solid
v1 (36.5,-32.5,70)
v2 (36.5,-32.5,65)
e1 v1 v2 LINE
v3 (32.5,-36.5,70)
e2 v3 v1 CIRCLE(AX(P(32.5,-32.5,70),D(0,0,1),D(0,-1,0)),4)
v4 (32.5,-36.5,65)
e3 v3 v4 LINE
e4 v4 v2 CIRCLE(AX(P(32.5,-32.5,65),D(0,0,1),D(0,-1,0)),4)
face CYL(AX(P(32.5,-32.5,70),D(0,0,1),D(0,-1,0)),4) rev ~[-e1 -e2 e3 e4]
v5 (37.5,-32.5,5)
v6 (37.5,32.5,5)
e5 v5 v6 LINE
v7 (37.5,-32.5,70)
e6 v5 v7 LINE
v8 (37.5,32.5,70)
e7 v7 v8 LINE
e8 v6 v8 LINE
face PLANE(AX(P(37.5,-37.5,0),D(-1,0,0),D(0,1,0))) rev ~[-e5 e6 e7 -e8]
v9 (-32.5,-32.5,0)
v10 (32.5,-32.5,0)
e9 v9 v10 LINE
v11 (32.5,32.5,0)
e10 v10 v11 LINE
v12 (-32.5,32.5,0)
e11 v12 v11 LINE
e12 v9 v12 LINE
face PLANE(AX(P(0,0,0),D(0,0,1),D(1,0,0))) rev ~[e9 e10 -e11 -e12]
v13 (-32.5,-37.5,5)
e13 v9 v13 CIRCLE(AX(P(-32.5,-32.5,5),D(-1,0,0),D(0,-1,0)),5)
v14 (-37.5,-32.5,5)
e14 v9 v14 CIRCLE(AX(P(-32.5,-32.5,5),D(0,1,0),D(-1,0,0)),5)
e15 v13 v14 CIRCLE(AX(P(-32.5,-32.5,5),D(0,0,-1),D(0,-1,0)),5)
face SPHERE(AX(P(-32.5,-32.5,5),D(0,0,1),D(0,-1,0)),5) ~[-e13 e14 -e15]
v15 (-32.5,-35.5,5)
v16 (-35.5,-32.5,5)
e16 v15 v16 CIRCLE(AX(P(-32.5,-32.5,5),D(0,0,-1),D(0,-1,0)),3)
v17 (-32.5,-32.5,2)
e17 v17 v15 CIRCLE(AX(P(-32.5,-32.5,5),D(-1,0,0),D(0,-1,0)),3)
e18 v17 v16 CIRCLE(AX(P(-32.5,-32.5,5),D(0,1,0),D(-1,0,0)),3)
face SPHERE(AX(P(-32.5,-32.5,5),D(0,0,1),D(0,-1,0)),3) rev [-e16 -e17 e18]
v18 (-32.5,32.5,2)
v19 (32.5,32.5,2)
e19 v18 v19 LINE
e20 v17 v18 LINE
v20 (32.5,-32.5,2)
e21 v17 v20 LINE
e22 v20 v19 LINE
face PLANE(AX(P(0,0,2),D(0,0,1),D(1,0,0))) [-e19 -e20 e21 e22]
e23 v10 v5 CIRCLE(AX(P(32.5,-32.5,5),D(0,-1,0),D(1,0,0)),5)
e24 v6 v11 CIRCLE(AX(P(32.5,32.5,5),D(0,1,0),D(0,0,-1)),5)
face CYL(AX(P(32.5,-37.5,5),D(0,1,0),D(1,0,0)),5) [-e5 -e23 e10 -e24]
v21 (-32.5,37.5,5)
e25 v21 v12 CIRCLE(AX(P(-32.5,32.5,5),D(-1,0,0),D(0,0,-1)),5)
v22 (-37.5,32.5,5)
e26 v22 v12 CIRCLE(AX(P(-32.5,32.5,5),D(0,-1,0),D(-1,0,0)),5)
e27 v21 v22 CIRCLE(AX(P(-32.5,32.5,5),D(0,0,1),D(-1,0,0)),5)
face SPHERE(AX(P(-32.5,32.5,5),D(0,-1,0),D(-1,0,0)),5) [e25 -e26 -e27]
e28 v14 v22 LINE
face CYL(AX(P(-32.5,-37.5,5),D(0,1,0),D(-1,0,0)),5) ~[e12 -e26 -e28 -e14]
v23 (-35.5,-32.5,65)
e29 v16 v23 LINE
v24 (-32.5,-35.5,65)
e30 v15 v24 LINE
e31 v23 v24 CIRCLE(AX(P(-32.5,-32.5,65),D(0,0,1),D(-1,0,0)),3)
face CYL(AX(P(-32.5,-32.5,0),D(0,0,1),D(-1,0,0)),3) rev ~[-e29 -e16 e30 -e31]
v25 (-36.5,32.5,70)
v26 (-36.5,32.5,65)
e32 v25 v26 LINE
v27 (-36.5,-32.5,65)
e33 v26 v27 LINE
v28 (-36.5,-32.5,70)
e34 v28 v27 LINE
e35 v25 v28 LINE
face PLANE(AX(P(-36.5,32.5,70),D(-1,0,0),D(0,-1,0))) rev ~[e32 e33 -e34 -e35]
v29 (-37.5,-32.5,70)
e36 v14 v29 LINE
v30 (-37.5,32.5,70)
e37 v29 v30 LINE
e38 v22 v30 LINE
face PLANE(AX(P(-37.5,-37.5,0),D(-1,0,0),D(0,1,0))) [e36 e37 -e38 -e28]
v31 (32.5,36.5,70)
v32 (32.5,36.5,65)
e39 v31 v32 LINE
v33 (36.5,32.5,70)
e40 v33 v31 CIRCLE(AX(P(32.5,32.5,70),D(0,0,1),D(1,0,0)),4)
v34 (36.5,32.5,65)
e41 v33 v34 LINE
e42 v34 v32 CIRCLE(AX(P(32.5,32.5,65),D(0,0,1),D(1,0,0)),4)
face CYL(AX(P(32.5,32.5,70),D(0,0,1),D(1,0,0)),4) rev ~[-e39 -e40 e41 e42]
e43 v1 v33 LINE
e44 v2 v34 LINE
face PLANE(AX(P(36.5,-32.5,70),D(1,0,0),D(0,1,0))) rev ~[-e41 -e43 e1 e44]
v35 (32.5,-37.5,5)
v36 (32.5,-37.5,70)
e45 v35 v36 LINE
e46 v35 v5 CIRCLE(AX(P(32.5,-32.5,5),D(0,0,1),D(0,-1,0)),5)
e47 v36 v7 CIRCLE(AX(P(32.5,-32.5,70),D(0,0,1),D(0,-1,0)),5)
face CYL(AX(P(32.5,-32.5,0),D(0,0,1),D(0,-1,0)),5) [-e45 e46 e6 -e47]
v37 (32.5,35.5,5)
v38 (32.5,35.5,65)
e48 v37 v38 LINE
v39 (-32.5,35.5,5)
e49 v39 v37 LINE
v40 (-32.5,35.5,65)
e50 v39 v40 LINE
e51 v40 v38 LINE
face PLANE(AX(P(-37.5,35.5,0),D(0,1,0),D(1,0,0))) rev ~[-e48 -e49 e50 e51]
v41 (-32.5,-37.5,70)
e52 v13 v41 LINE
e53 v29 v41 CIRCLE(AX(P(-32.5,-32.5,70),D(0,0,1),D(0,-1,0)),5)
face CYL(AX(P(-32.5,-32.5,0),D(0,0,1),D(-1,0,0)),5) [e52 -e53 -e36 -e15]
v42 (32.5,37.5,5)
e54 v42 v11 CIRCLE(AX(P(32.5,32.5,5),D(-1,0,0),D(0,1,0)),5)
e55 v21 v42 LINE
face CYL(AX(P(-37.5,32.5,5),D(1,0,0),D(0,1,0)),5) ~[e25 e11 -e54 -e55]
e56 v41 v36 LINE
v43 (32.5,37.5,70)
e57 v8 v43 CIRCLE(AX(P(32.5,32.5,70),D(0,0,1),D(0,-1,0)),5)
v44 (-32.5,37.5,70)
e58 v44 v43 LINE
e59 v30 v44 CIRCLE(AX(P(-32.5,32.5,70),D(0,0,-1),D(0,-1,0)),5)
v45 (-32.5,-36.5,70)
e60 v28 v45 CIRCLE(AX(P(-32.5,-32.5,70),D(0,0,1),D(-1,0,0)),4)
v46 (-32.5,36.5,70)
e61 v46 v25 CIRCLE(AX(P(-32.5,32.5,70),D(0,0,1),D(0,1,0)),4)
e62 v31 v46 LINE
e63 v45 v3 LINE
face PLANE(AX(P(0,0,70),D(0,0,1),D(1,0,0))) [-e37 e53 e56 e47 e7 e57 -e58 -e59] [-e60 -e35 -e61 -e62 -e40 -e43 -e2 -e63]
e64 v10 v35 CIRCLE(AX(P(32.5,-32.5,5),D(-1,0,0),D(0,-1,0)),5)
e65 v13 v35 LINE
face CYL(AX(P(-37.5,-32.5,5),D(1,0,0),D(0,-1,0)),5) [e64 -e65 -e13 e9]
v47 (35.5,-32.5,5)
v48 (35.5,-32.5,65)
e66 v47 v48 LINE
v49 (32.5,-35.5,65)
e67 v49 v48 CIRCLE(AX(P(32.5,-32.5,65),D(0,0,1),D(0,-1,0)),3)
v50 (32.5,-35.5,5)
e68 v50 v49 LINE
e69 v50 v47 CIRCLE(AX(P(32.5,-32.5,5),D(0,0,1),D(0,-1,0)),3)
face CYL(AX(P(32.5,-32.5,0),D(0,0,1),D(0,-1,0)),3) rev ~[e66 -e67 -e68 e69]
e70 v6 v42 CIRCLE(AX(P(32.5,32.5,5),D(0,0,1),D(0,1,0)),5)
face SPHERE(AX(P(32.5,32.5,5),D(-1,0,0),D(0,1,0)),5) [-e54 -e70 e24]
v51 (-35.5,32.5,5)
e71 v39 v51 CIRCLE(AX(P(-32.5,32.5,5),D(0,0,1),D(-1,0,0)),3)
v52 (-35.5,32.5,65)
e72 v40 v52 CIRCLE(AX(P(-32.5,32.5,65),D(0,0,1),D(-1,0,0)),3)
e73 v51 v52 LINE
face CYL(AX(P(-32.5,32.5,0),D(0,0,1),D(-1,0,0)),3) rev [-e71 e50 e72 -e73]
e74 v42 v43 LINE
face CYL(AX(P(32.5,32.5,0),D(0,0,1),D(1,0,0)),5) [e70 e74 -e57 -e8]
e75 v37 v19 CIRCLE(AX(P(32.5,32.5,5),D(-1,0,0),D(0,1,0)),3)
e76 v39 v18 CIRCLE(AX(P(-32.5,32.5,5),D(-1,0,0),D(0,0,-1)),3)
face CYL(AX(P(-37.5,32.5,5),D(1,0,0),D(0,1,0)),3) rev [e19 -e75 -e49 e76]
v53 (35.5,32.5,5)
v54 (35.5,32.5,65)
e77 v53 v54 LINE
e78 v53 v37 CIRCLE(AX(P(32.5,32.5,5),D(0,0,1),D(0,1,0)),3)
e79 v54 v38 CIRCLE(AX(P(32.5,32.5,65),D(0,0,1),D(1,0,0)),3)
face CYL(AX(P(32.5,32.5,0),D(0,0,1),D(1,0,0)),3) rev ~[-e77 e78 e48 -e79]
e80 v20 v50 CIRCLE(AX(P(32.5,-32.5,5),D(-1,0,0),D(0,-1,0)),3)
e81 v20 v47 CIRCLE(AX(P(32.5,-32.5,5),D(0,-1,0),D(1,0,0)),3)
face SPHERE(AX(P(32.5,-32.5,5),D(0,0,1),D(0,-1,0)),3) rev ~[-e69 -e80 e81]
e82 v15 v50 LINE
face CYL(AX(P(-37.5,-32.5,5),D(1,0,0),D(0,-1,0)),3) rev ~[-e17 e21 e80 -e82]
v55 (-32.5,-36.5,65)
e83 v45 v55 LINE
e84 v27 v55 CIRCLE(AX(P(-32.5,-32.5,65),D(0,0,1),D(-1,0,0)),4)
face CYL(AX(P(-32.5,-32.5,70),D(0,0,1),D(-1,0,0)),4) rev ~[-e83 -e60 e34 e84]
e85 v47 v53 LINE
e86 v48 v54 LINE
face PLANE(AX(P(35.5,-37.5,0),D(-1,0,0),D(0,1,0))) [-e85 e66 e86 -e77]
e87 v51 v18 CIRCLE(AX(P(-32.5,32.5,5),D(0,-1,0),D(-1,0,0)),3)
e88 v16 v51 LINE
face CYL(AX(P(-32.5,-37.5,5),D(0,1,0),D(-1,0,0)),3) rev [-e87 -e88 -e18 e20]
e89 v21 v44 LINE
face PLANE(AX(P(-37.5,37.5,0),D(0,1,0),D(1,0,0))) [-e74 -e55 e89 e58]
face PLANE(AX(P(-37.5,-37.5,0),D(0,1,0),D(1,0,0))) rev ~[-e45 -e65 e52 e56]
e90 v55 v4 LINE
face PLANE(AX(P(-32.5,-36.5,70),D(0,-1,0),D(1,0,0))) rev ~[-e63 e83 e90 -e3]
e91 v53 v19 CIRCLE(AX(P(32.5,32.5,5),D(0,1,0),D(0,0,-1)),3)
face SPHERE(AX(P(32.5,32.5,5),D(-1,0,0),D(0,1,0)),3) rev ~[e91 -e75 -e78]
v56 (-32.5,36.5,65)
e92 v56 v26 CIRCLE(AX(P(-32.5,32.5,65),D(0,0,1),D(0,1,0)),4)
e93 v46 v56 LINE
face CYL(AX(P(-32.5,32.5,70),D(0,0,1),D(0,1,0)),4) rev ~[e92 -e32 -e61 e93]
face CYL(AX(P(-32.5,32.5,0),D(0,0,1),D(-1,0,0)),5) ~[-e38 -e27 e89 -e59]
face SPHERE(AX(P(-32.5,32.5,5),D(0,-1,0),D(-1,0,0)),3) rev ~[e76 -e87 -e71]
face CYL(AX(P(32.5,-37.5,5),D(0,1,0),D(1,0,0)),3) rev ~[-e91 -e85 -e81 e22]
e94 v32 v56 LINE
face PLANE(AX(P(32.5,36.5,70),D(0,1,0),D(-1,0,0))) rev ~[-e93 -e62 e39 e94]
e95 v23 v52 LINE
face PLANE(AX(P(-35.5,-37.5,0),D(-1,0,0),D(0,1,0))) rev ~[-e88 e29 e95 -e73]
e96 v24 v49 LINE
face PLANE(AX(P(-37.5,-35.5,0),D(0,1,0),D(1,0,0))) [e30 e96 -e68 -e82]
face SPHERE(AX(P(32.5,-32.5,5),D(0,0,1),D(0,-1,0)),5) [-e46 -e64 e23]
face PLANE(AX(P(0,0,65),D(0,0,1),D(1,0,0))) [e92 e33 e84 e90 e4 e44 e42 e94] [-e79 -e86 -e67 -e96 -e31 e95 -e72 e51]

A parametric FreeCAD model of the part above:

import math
import FreeCAD as App
import Part
import Sketcher

V = App.Vector


def edges_at(feature, points):
    """Names of the edges that pass closest to the given points."""
    edges = feature.Shape.Edges
    near = lambda p: min(range(len(edges)), key=lambda i: edges[i].distToShape(Part.Vertex(*p))[0])
    return sorted({f"Edge{near(p) + 1}" for p in points})


def faces_at(feature, points):
    """Names of the faces that lie closest to the given points."""
    faces = feature.Shape.Faces
    near = lambda p: min(range(len(faces)), key=lambda i: faces[i].distToShape(Part.Vertex(*p))[0])
    return sorted({f"Face{near(p) + 1}" for p in points})


def add_polygon(sketch, points):
    """Adds a closed chain of lines whose ends are joined by coincident constraints."""
    first, n = sketch.GeometryCount, len(points)
    for a, b in zip(points, points[1:] + points[:1]):
        sketch.addGeometry(Part.LineSegment(App.Vector(*a, 0), App.Vector(*b, 0)), False)
    for i in range(n):
        sketch.addConstraint(Sketcher.Constraint("Coincident", first + i, 2, first + (i + 1) % n, 1))

doc = App.newDocument("Part")
params = doc.addObject("Spreadsheet::Sheet", "Params")
for row, (alias, value) in enumerate([
    ("sketch1_width", "75 mm"),
    ("pad1_length", "70 mm"),
    ("fillet_radius", "5 mm"),
    ("thickness_wall", "2 mm"),
    ("sketch2_radius", "4 mm"),
    ("sketch2_width", "65 mm"),
    ("pocket1_length", "5 mm"),
], start=1):
    params.set(f"A{row}", alias)
    params.set(f"B{row}", "=" + value)
    params.setAlias(f"B{row}", alias)

body = doc.addObject("PartDesign::Body", "Body")

sketch1 = body.newObject("Sketcher::SketchObject", "Sketch")
sketch1.AttachmentSupport = (doc.getObject("XY_Plane"), [""])
sketch1.MapMode = "FlatFace"
add_polygon(sketch1, [(-38, 38), (-38, -38), (38, -38), (38, 38)])
sketch1.addConstraint([
    Sketcher.Constraint("Vertical", 0),
    Sketcher.Constraint("Horizontal", 1),
    Sketcher.Constraint("Vertical", 2),
    Sketcher.Constraint("Horizontal", 3),
    Sketcher.Constraint("Symmetric", 0, 2, 2, 2, -1, 1),
    Sketcher.Constraint("Equal", 3, 0),
    Sketcher.Constraint("DistanceX", 1, 1, 1, 2, 75.0),
])
sketch1.setExpression("Constraints[10]", "Params.sketch1_width")
pad1 = body.newObject("PartDesign::Pad", "Pad")
pad1.Profile = sketch1
pad1.setExpression("Length", "Params.pad1_length")
doc.recompute()

fillet = body.newObject("PartDesign::Fillet", "Fillet")
fillet.Base = (pad1, edges_at(pad1, [
    (-37.5, -37.5, 35),
    (37.5, -37.5, 35),
    (0, -37.5, 0),
    (-37.5, 0, 0),
    (-37.5, 37.5, 35),
    (0, 37.5, 0),
    (37.5, 37.5, 35),
    (37.5, 0, 0),
]))
fillet.setExpression("Radius", "Params.fillet_radius")
doc.recompute()

thickness = body.newObject("PartDesign::Thickness", "Thickness")
thickness.Base = (fillet, faces_at(fillet, [(0, 0, 70)]))
thickness.setExpression("Value", "Params.thickness_wall")
thickness.Reversed = True
thickness.Join = "Arc"

sketch2 = body.newObject("Sketcher::SketchObject", "Sketch001")
sketch2.AttachmentSupport = (doc.getObject("XY_Plane"), [""])
sketch2.MapMode = "FlatFace"
sketch2.AttachmentOffset = App.Placement(V(0, 0, 70), App.Rotation())
sketch2.addGeometry([
    Part.LineSegment(V(-36.5, 32.5, 0), V(-36.5, -32.5, 0)),
    Part.ArcOfCircle(Part.Circle(V(-32.5, -32.5, 0), V(0, 0, 1), 4), math.radians(180), math.radians(270)),
    Part.LineSegment(V(-32.5, -36.5, 0), V(32.5, -36.5, 0)),
    Part.ArcOfCircle(Part.Circle(V(32.5, -32.5, 0), V(0, 0, 1), 4), math.radians(-90), math.radians(0)),
    Part.LineSegment(V(36.5, -32.5, 0), V(36.5, 32.5, 0)),
    Part.ArcOfCircle(Part.Circle(V(32.5, 32.5, 0), V(0, 0, 1), 4), math.radians(0), math.radians(90)),
    Part.LineSegment(V(32.5, 36.5, 0), V(-32.5, 36.5, 0)),
    Part.ArcOfCircle(Part.Circle(V(-32.5, 32.5, 0), V(0, 0, 1), 4), math.radians(90), math.radians(180)),
], False)
sketch2.addConstraint([
    Sketcher.Constraint("Tangent", 0, 2, 1, 1),
    Sketcher.Constraint("Tangent", 1, 2, 2, 1),
    Sketcher.Constraint("Tangent", 2, 2, 3, 1),
    Sketcher.Constraint("Tangent", 3, 2, 4, 1),
    Sketcher.Constraint("Tangent", 4, 2, 5, 1),
    Sketcher.Constraint("Tangent", 5, 2, 6, 1),
    Sketcher.Constraint("Tangent", 6, 2, 7, 1),
    Sketcher.Constraint("Tangent", 7, 2, 0, 1),
    Sketcher.Constraint("Vertical", 0),
    Sketcher.Constraint("Horizontal", 2),
    Sketcher.Constraint("Vertical", 4),
    Sketcher.Constraint("Horizontal", 6),
    Sketcher.Constraint("Equal", 1, 3),
    Sketcher.Constraint("Equal", 3, 5),
    Sketcher.Constraint("Equal", 5, 7),
    Sketcher.Constraint("Symmetric", 1, 3, 5, 3, -1, 1),
    Sketcher.Constraint("Equal", 6, 0),
    Sketcher.Constraint("Radius", 1, 4.0),
    Sketcher.Constraint("DistanceX", 2, 1, 2, 2, 65.0),
])
sketch2.setExpression("Constraints[17]", "Params.sketch2_radius")
sketch2.setExpression("Constraints[18]", "Params.sketch2_width")
pocket1 = body.newObject("PartDesign::Pocket", "Pocket")
pocket1.Profile = sketch2
pocket1.setExpression("Length", "Params.pocket1_length")

doc.recompute()
